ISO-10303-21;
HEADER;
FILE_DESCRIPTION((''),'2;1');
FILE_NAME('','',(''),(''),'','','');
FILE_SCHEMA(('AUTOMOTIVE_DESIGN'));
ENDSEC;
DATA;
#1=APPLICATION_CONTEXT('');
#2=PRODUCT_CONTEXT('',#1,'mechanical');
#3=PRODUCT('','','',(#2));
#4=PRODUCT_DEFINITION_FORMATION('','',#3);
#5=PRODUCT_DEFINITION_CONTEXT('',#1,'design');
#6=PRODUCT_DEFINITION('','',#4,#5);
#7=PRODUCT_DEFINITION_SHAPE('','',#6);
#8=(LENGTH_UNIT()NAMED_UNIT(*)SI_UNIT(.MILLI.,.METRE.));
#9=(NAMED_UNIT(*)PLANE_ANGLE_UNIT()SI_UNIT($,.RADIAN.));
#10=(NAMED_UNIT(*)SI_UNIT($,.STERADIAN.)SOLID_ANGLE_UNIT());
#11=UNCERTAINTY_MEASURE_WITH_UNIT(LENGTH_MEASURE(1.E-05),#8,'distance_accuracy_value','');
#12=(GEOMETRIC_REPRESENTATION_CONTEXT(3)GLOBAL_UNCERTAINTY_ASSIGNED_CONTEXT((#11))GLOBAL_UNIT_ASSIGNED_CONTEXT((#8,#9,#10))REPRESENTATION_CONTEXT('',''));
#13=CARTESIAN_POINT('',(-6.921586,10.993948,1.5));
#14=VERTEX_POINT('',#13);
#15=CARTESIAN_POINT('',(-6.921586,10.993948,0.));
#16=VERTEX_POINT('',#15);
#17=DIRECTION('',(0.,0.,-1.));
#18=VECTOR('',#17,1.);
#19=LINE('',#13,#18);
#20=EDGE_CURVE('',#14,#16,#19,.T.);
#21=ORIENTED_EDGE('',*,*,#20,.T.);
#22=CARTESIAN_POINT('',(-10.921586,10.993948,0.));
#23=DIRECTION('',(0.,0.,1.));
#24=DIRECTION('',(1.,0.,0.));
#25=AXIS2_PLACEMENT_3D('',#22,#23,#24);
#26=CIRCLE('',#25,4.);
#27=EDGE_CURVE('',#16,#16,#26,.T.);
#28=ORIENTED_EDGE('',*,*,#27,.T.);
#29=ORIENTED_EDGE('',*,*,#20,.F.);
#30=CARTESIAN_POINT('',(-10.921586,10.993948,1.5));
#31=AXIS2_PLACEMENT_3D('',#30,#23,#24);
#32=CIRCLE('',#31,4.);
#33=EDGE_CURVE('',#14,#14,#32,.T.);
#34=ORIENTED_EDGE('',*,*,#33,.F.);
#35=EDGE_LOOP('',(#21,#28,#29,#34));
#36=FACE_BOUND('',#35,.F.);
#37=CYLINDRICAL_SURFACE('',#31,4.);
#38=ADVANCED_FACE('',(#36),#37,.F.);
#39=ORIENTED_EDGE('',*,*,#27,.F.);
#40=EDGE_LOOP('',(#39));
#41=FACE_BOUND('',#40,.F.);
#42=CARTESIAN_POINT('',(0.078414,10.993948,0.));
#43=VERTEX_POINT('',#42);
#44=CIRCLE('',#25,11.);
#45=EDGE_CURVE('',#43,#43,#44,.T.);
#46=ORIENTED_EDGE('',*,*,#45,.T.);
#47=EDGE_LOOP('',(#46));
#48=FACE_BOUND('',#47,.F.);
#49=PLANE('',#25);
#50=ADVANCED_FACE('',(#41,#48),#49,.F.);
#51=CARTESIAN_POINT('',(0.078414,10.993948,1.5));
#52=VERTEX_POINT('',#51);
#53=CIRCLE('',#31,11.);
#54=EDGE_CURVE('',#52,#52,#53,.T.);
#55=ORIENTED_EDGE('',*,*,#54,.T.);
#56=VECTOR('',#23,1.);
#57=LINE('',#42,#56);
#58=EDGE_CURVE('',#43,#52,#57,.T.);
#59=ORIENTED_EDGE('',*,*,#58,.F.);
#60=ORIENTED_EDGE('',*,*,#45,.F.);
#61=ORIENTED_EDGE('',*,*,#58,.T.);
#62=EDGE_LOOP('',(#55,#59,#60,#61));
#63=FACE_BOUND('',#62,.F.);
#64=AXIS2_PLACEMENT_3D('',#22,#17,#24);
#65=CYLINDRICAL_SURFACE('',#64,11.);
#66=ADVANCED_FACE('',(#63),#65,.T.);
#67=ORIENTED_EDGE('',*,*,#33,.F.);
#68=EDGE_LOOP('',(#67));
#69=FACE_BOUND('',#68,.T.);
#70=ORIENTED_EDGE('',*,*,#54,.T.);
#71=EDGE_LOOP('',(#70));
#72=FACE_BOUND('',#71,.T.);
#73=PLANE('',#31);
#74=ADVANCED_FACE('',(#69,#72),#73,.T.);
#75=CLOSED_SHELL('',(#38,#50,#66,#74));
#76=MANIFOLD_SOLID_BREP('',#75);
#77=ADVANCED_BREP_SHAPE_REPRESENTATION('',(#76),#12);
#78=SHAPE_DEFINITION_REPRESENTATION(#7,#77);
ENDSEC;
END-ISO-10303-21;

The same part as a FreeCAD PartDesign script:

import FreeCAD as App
import Part
import Sketcher
from FreeCAD import Vector

doc = App.newDocument("Part")
params = doc.addObject("Spreadsheet::Sheet", "Params")
for row, (alias, value) in enumerate([
    ("sketch1_diameter", "22 mm"),
    ("pad1_length", "1.5 mm"),
    ("sketch2_diameter", "8 mm"),
    ("pocket1_length", "25 mm"),
], start=1):
    params.set(f"A{row}", alias)
    params.set(f"B{row}", "=" + value)
    params.setAlias(f"B{row}", alias)

body = doc.addObject("PartDesign::Body", "Body")

# Sketch on XY plane
sketch1 = body.newObject("Sketcher::SketchObject", "Sketch")
sketch1.AttachmentSupport = (doc.getObject("XY_Plane"), [""])
sketch1.MapMode = "FlatFace"
sketch1.addGeometry(Part.Circle(Vector(-33, 32, 0), Vector(0, 0, 1), 11), False)
sketch1.addConstraint(Sketcher.Constraint("Diameter", 0, 22.0))
sketch1.addConstraint(Sketcher.Constraint("DistanceY", -1, 1, 0, 3, 31.793948))
sketch1.addConstraint(Sketcher.Constraint("DistanceX", 0, 3, -1, 1, 33.321586))
sketch1.setExpression("Constraints[0]", "Params.sketch1_diameter")
pad1 = body.newObject("PartDesign::Pad", "Pad")
pad1.Profile = sketch1
pad1.setExpression("Length", "Params.pad1_length")

# Sketch on XY plane
sketch2 = body.newObject("Sketcher::SketchObject", "Sketch001")
sketch2.AttachmentSupport = (doc.getObject("XY_Plane"), [""])
sketch2.MapMode = "FlatFace"
sketch2.AttachmentOffset = App.Placement(Vector(0, 0, 1.5), App.Rotation())
sketch2.addGeometry(Part.Circle(Vector(-33.3, 31.8, 0), Vector(0, 0, 1), 4), False)
sketch2.addConstraint(Sketcher.Constraint("Diameter", 0, 8.0))
sketch2.addConstraint(Sketcher.Constraint("DistanceY", -1, 1, 0, 3, 31.793948))
sketch2.addConstraint(Sketcher.Constraint("DistanceX", 0, 3, -1, 1, 33.321586))
sketch2.setExpression("Constraints[0]", "Params.sketch2_diameter")
pocket1 = body.newObject("PartDesign::Pocket", "Pocket")
pocket1.Profile = sketch2
pocket1.setExpression("Length", "Params.pocket1_length")
body2 = doc.addObject("PartDesign::Body", "Body001")
doc.recompute()

body.Placement = App.Placement(Vector(22.4, -20.8, 0), App.Rotation(Vector(0, 0, 1), 0))
boolean = body2.newObject("PartDesign::Boolean", "Boolean")
boolean.Type = "Fuse"
boolean.addObjects([body])

doc.recompute()
